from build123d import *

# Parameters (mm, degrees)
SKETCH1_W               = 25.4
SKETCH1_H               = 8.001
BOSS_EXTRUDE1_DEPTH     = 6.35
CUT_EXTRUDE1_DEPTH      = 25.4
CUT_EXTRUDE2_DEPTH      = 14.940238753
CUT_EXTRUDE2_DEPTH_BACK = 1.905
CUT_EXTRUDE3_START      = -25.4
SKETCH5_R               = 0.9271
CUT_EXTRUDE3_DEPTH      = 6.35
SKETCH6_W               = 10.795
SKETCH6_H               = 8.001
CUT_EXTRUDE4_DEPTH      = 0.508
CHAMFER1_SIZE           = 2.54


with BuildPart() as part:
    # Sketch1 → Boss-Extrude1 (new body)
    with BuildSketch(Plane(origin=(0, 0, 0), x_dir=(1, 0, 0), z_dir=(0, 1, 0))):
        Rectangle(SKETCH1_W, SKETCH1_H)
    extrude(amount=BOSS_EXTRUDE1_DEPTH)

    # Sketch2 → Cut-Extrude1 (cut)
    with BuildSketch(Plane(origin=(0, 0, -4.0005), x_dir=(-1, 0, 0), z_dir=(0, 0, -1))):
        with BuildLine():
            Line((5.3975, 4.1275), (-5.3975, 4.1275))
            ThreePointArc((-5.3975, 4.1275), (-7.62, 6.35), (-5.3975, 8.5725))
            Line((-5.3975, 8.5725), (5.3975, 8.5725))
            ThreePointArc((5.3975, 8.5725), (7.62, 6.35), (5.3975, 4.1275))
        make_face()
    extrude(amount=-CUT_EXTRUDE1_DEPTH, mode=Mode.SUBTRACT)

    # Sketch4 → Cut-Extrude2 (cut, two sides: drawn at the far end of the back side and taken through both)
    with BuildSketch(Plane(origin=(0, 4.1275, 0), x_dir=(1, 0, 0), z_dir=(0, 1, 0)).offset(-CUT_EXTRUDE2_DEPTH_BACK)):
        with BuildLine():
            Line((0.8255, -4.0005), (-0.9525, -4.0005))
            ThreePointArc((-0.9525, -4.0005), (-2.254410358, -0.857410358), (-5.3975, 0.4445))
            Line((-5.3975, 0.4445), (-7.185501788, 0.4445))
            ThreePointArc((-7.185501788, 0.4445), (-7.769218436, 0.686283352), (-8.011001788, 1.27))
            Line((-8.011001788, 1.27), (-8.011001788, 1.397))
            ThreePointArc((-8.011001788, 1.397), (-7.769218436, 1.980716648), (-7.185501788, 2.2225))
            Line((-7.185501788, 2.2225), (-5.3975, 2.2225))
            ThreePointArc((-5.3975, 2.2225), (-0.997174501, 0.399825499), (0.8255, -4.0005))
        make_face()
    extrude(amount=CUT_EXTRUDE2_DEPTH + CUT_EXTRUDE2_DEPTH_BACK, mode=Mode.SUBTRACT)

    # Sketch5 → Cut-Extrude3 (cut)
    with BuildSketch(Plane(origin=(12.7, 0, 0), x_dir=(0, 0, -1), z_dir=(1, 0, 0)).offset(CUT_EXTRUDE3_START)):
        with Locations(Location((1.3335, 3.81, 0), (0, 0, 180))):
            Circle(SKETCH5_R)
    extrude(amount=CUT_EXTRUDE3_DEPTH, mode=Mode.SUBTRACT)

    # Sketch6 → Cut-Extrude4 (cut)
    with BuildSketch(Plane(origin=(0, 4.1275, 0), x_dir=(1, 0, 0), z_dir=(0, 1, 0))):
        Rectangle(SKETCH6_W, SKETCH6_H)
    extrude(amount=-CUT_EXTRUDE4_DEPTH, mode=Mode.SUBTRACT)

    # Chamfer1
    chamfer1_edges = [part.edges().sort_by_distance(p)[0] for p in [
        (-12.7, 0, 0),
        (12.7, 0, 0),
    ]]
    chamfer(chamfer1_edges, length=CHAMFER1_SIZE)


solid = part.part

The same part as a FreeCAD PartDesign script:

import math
import FreeCAD as App
import Part
import Sketcher
from FreeCAD import Vector
Q = App.Units.Quantity


def edges_at(feature, points):
    """Names of the edges that pass closest to the given points."""
    edges = feature.Shape.Edges
    near = lambda p: min(range(len(edges)), key=lambda i: edges[i].distToShape(Part.Vertex(*p))[0])
    return sorted({f"Edge{near(p) + 1}" for p in points})

doc = App.newDocument("Part")
body = doc.addObject("PartDesign::Body", "Body")

sketch1 = body.newObject("Sketcher::SketchObject", "Sketch")
sketch1.AttachmentSupport = (doc.getObject("XZ_Plane"), [""])
sketch1.MapMode = "FlatFace"
sketch1.addGeometry([
    Part.LineSegment(Vector(-13, -4, 0), Vector(-13, 4, 0)),
    Part.LineSegment(Vector(-13, 4, 0), Vector(13, 4, 0)),
    Part.LineSegment(Vector(13, 4, 0), Vector(13, -4, 0)),
    Part.LineSegment(Vector(13, -4, 0), Vector(-13, -4, 0)),
], False)
sketch1.addConstraint([
    Sketcher.Constraint("Coincident", 0, 2, 1, 1),
    Sketcher.Constraint("Coincident", 1, 2, 2, 1),
    Sketcher.Constraint("Coincident", 2, 2, 3, 1),
    Sketcher.Constraint("Coincident", 3, 2, 0, 1),
    Sketcher.Constraint("Vertical", 0),
    Sketcher.Constraint("Horizontal", 1),
    Sketcher.Constraint("Vertical", 2),
    Sketcher.Constraint("Horizontal", 3),
    Sketcher.Constraint("Symmetric", 0, 2, 2, 2, -1, 1),
    Sketcher.Constraint("DistanceX", 1, 1, 1, 2, Q("1 in")),
    Sketcher.Constraint("DistanceY", 0, 1, 0, 2, Q("0.315 in")),
])
pad1 = body.newObject("PartDesign::Pad", "Pad")
pad1.Profile = sketch1
pad1.Length = Q("0.25 in")
pad1.Reversed = True

sketch2 = body.newObject("Sketcher::SketchObject", "Sketch001")
sketch2.AttachmentSupport = (doc.getObject("XY_Plane"), [""])
sketch2.MapMode = "FlatFace"
sketch2.AttachmentOffset = App.Placement(Vector(0, 0, -0.1575 * 25.4), App.Rotation())
sketch2.addGeometry([
    Part.LineSegment(Vector(5.4, 4.1, 0), Vector(-5.4, 4.1, 0)),
    Part.ArcOfCircle(Part.Circle(Vector(-5.4, 6.3, 0), Vector(0, 0, 1), 2.2), math.radians(90), math.radians(270)),
    Part.LineSegment(Vector(-5.4, 8.6, 0), Vector(5.4, 8.6, 0)),
    Part.ArcOfCircle(Part.Circle(Vector(5.4, 6.3, 0), Vector(0, 0, 1), 2.2), math.radians(-90), math.radians(90)),
], False)
sketch2.addConstraint([
    Sketcher.Constraint("Tangent", 0, 2, 1, 2),
    Sketcher.Constraint("Tangent", 1, 1, 2, 1),
    Sketcher.Constraint("Tangent", 2, 2, 3, 2),
    Sketcher.Constraint("Tangent", 3, 1, 0, 1),
    Sketcher.Constraint("Horizontal", 0),
    Sketcher.Constraint("Horizontal", 2),
    Sketcher.Constraint("Radius", 1, Q("0.0875 in")),
    Sketcher.Constraint("DistanceX", 0, 2, 0, 1, Q("0.425 in")),
    Sketcher.Constraint("DistanceY", -1, 1, 1, 3, Q("0.25 in")),
    Sketcher.Constraint("DistanceX", 1, 3, -1, 1, Q("0.2125 in")),
])
pocket1 = body.newObject("PartDesign::Pocket", "Pocket")
pocket1.Profile = sketch2
pocket1.Length = Q("1 in")
pocket1.Reversed = True

sketch3 = body.newObject("Sketcher::SketchObject", "Sketch002")
sketch3.AttachmentSupport = (doc.getObject("XZ_Plane"), [""])
sketch3.MapMode = "FlatFace"
sketch3.AttachmentOffset = App.Placement(Vector(0, 0, -0.1625 * 25.4), App.Rotation())
sketch3.addGeometry([
    Part.LineSegment(Vector(-0.95, 4, 0), Vector(0.83, 4, 0)),
    Part.ArcOfCircle(Part.Circle(Vector(-5.4, 4, 0), Vector(0, 0, 1), 6.22), math.radians(-90), math.radians(0)),
    Part.LineSegment(Vector(-5.4, -2.22, 0), Vector(-7.19, -2.22, 0)),
    Part.ArcOfCircle(Part.Circle(Vector(-7.19, -1.4, 0), Vector(0, 0, 1), 0.83), math.radians(180), math.radians(270)),
    Part.LineSegment(Vector(-8.01, -1.4, 0), Vector(-8.01, -1.27, 0)),
    Part.ArcOfCircle(Part.Circle(Vector(-7.19, -1.27, 0), Vector(0, 0, 1), 0.83), math.radians(90), math.radians(180)),
    Part.LineSegment(Vector(-7.19, -0.44, 0), Vector(-5.4, -0.44, 0)),
    Part.ArcOfCircle(Part.Circle(Vector(-5.4, 4, 0), Vector(0, 0, 1), 4.45), math.radians(-90), math.radians(0)),
], False)
sketch3.addConstraint([
    Sketcher.Constraint("Coincident", 0, 2, 1, 2),
    Sketcher.Constraint("Tangent", 1, 1, 2, 1),
    Sketcher.Constraint("Tangent", 2, 2, 3, 2),
    Sketcher.Constraint("Tangent", 3, 1, 4, 1),
    Sketcher.Constraint("Tangent", 4, 2, 5, 2),
    Sketcher.Constraint("Tangent", 5, 1, 6, 1),
    Sketcher.Constraint("Tangent", 6, 2, 7, 1),
    Sketcher.Constraint("Coincident", 7, 2, 0, 1),
    Sketcher.Constraint("Horizontal", 0),
    Sketcher.Constraint("Horizontal", 2),
    Sketcher.Constraint("Vertical", 4),
    Sketcher.Constraint("Horizontal", 6),
    Sketcher.Constraint("Coincident", 7, 3, 1, 3),
    Sketcher.Constraint("Equal", 3, 5),
    Sketcher.Constraint("Horizontal", 7, 3, 0, 2),
    Sketcher.Constraint("Radius", 1, Q("0.245 in")),
    Sketcher.Constraint("Radius", 7, Q("0.175 in")),
    Sketcher.Constraint("Radius", 3, Q("0.0325 in")),
    Sketcher.Constraint("DistanceY", 5, 3, -1, 1, Q("0.05 in")),
    Sketcher.Constraint("DistanceX", 2, 2, 2, 1, 1.788002),
    Sketcher.Constraint("DistanceX", 1, 3, -1, 1, Q("0.2125 in")),
])
pocket2 = body.newObject("PartDesign::Pocket", "Pocket001")
pocket2.Profile = sketch3
pocket2.Type = "TwoLengths"
pocket2.Length = 14.940239
pocket2.Length2 = Q("0.075 in")

sketch4 = body.newObject("Sketcher::SketchObject", "Sketch003")
sketch4.AttachmentSupport = (doc.getObject("YZ_Plane"), [""])
sketch4.MapMode = "FlatFace"
sketch4.AttachmentOffset = App.Placement(Vector(0, 0, -0.5 * 25.4), App.Rotation())
sketch4.addGeometry(Part.Circle(Vector(3.8, -1.3, 0), Vector(0, 0, 1), 0.9), False)
sketch4.addConstraint([
    Sketcher.Constraint("Diameter", 0, Q("0.073 in")),
    Sketcher.Constraint("DistanceX", -1, 1, 0, 3, Q("0.15 in")),
    Sketcher.Constraint("DistanceY", 0, 3, -1, 1, Q("0.0525 in")),
])
pocket3 = body.newObject("PartDesign::Pocket", "Pocket002")
pocket3.Profile = sketch4
pocket3.Length = Q("0.25 in")
pocket3.Reversed = True

sketch5 = body.newObject("Sketcher::SketchObject", "Sketch004")
sketch5.AttachmentSupport = (doc.getObject("XZ_Plane"), [""])
sketch5.MapMode = "FlatFace"
sketch5.AttachmentOffset = App.Placement(Vector(0, 0, -0.1625 * 25.4), App.Rotation())
sketch5.addGeometry([
    Part.LineSegment(Vector(-5, -4, 0), Vector(-5, 4, 0)),
    Part.LineSegment(Vector(-5, 4, 0), Vector(5, 4, 0)),
    Part.LineSegment(Vector(5, 4, 0), Vector(5, -4, 0)),
    Part.LineSegment(Vector(5, -4, 0), Vector(-5, -4, 0)),
], False)
sketch5.addConstraint([
    Sketcher.Constraint("Coincident", 0, 2, 1, 1),
    Sketcher.Constraint("Coincident", 1, 2, 2, 1),
    Sketcher.Constraint("Coincident", 2, 2, 3, 1),
    Sketcher.Constraint("Coincident", 3, 2, 0, 1),
    Sketcher.Constraint("Vertical", 0),
    Sketcher.Constraint("Horizontal", 1),
    Sketcher.Constraint("Vertical", 2),
    Sketcher.Constraint("Horizontal", 3),
    Sketcher.Constraint("Symmetric", 0, 2, 2, 2, -1, 1),
    Sketcher.Constraint("DistanceX", 1, 1, 1, 2, Q("0.425 in")),
    Sketcher.Constraint("DistanceY", 0, 1, 0, 2, Q("0.315 in")),
])
pocket4 = body.newObject("PartDesign::Pocket", "Pocket003")
pocket4.Profile = sketch5
pocket4.Length = Q("0.02 in")
pocket4.Reversed = True
doc.recompute()

chamfer = body.newObject("PartDesign::Chamfer", "Chamfer")
chamfer.Base = (pocket4, edges_at(pocket4, [(-12.7, 0, 0), (12.7, 0, 0)]))
chamfer.Size = Q("0.1 in")

doc.recompute()
